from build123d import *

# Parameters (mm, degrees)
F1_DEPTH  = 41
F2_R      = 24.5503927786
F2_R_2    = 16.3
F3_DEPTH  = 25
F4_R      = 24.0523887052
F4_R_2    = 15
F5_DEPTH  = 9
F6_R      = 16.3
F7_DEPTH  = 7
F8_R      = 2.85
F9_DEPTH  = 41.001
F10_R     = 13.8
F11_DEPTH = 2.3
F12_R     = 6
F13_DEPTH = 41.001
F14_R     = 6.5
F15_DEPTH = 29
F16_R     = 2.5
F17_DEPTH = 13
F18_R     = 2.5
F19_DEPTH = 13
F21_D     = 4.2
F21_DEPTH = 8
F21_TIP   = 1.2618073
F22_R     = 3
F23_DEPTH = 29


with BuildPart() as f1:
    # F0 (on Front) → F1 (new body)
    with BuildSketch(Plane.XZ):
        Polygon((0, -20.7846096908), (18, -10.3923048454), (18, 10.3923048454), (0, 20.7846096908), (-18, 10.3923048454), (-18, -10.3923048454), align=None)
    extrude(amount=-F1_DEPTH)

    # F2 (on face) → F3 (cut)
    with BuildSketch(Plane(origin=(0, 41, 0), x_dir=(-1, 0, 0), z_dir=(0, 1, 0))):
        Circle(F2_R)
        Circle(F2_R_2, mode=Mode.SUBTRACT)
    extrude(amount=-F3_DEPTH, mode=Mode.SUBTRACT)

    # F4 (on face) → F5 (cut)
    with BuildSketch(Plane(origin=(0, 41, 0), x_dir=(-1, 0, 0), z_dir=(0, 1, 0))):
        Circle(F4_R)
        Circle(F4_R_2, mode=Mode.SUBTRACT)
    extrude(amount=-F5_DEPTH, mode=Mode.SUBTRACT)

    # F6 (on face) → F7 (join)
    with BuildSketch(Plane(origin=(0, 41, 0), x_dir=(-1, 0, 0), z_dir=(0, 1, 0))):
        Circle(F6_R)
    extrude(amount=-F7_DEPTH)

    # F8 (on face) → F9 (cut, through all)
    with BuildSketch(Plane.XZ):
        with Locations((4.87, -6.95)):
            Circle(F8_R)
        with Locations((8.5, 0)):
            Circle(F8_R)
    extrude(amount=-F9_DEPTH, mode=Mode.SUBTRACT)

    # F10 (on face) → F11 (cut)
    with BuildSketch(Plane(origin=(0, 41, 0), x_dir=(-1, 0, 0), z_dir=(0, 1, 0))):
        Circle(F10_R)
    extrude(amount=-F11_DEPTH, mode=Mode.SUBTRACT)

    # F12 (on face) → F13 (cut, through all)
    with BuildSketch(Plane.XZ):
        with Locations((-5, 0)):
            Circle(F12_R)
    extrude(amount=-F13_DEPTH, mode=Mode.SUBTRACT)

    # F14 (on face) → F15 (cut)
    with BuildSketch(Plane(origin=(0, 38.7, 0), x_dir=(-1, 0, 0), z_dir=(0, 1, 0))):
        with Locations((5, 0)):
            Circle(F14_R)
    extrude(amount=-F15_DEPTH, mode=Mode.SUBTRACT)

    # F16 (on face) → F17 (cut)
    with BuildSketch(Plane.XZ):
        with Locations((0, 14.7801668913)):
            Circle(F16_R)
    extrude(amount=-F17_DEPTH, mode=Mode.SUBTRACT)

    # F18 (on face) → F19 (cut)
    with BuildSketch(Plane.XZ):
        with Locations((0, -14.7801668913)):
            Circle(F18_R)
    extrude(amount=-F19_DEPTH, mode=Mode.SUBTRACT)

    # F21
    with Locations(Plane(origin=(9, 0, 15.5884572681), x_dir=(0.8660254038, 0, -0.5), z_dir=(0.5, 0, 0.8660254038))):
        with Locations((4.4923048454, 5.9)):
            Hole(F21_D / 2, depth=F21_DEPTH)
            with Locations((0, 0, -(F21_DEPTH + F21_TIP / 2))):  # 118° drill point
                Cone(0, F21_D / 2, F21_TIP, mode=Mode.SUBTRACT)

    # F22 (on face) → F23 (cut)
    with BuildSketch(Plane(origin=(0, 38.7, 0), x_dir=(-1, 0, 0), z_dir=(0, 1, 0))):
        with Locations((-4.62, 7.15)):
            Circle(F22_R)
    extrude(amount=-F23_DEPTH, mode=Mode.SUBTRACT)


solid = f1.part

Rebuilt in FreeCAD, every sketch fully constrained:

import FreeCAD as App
import Part
import Sketcher

V = App.Vector
Q = App.Units.Quantity

doc = App.newDocument("Part")
params = doc.addObject("Spreadsheet::Sheet", "Params")
for row, (alias, value) in enumerate([
    ("pad1_length", "41 mm"),
    ("sketch2_diameter", "32.6 mm"),
    ("pocket1_length", "25 mm"),
    ("sketch3_diameter", "30 mm"),
    ("pocket2_length", "9 mm"),
    ("sketch4_diameter", "32.6 mm"),
    ("pad2_length", "7 mm"),
    ("sketch5_diameter", "5.7 mm"),
    ("sketch6_diameter", "27.6 mm"),
    ("pocket4_length", "2.3 mm"),
    ("sketch7_diameter", "12 mm"),
    ("sketch8_diameter", "13 mm"),
    ("pocket6_length", "29 mm"),
    ("sketch9_diameter", "5 mm"),
    ("pocket7_length", "13 mm"),
    ("sketch10_diameter", "5 mm"),
    ("pocket8_length", "13 mm"),
    ("sketch11_diameter", "4.2 mm"),
    ("hole_diameter", "4.2 mm"),
    ("hole_depth", "8 mm"),
    ("sketch12_diameter", "6 mm"),
    ("pocket9_length", "29 mm"),
], start=1):
    params.set(f"A{row}", alias)
    params.set(f"B{row}", "=" + value)
    params.setAlias(f"B{row}", alias)

body = doc.addObject("PartDesign::Body", "Body")

# Sketch on XZ plane
sketch1 = body.newObject("Sketcher::SketchObject", "Sketch")
sketch1.AttachmentSupport = (doc.getObject("XZ_Plane"), [""])
sketch1.MapMode = "FlatFace"
sketch1.addGeometry([
    Part.LineSegment(V(0, -20.78461, 0), V(18, -10.392305, 0)),  # 0
    Part.LineSegment(V(18, -10.392305, 0), V(18, 10.392305, 0)),  # 1
    Part.LineSegment(V(18, 10.392305, 0), V(0, 20.78461, 0)),  # 2
    Part.LineSegment(V(0, 20.78461, 0), V(-18, 10.392305, 0)),  # 3
    Part.LineSegment(V(-18, 10.392305, 0), V(-18, -10.392305, 0)),  # 4
    Part.LineSegment(V(-18, -10.392305, 0), V(0, -20.78461, 0)),  # 5
], False)
sketch1.addConstraint([
    Sketcher.Constraint("Coincident", 0, 2, 1, 1),
    Sketcher.Constraint("Coincident", 1, 2, 2, 1),
    Sketcher.Constraint("Coincident", 2, 2, 3, 1),
    Sketcher.Constraint("Coincident", 3, 2, 4, 1),
    Sketcher.Constraint("Coincident", 4, 2, 5, 1),
    Sketcher.Constraint("Coincident", 5, 2, 0, 1),
    Sketcher.Constraint("Vertical", 1),
    Sketcher.Constraint("Vertical", 4),
    Sketcher.Constraint("Symmetric", 0, 2, 3, 2, -1, 1),
    Sketcher.Constraint("Symmetric", 2, 2, 5, 2, -1, 1),
    Sketcher.Constraint("PointOnObject", 2, 2, -2),
    Sketcher.Constraint("Parallel", 2, 5),
    Sketcher.Constraint("Horizontal", 1, 2, 3, 2),
    Sketcher.Constraint("Angle", 0, Q("30 deg")),
    Sketcher.Constraint("DistanceX", -1, 1, 0, 2, Q("18 mm")),
    Sketcher.Constraint("DistanceY", 1, 1, 1, 2, Q("20.78461 mm")),
])
pad1 = body.newObject("PartDesign::Pad", "Pad")
pad1.Profile = sketch1
pad1.setExpression("Length", "Params.pad1_length")
pad1.Reversed = True

# Sketch on XZ plane
sketch2 = body.newObject("Sketcher::SketchObject", "Sketch001")
sketch2.AttachmentSupport = (doc.getObject("XZ_Plane"), [""])
sketch2.MapMode = "FlatFace"
sketch2.AttachmentOffset = App.Placement(V(0, 0, -41), App.Rotation())
sketch2.addGeometry([
    Part.Circle(V(0, 0, 0), V(0, 0, 1), 24.550393),
    Part.Circle(V(0, 0, 0), V(0, 0, 1), 16.3),
], False)
sketch2.addConstraint([
    Sketcher.Constraint("Coincident", 0, 3, -1, 1),
    Sketcher.Constraint("Coincident", 1, 3, -1, 1),
    Sketcher.Constraint("Diameter", 1, Q("32.6 mm")),
    Sketcher.Constraint("Diameter", 0, Q("49.100786 mm")),
])
sketch2.setExpression("Constraints[2]", "Params.sketch2_diameter")
pocket1 = body.newObject("PartDesign::Pocket", "Pocket")
pocket1.Profile = sketch2
pocket1.setExpression("Length", "Params.pocket1_length")
pocket1.Reversed = True

# Sketch on XZ plane
sketch3 = body.newObject("Sketcher::SketchObject", "Sketch002")
sketch3.AttachmentSupport = (doc.getObject("XZ_Plane"), [""])
sketch3.MapMode = "FlatFace"
sketch3.AttachmentOffset = App.Placement(V(0, 0, -41), App.Rotation())
sketch3.addGeometry([
    Part.Circle(V(0, 0, 0), V(0, 0, 1), 24.052389),
    Part.Circle(V(0, 0, 0), V(0, 0, 1), 15),
], False)
sketch3.addConstraint([
    Sketcher.Constraint("Coincident", 0, 3, -1, 1),
    Sketcher.Constraint("Coincident", 1, 3, -1, 1),
    Sketcher.Constraint("Diameter", 1, Q("30 mm")),
    Sketcher.Constraint("Diameter", 0, Q("48.104777 mm")),
])
sketch3.setExpression("Constraints[2]", "Params.sketch3_diameter")
pocket2 = body.newObject("PartDesign::Pocket", "Pocket001")
pocket2.Profile = sketch3
pocket2.setExpression("Length", "Params.pocket2_length")
pocket2.Reversed = True

# Sketch on XZ plane
sketch4 = body.newObject("Sketcher::SketchObject", "Sketch003")
sketch4.AttachmentSupport = (doc.getObject("XZ_Plane"), [""])
sketch4.MapMode = "FlatFace"
sketch4.AttachmentOffset = App.Placement(V(0, 0, -41), App.Rotation())
sketch4.addGeometry(Part.Circle(V(0, 0, 0), V(0, 0, 1), 16.3), False)
sketch4.addConstraint([
    Sketcher.Constraint("Coincident", 0, 3, -1, 1),
    Sketcher.Constraint("Diameter", 0, Q("32.6 mm")),
])
sketch4.setExpression("Constraints[1]", "Params.sketch4_diameter")
pad2 = body.newObject("PartDesign::Pad", "Pad001")
pad2.Profile = sketch4
pad2.setExpression("Length", "Params.pad2_length")

# Sketch on XZ plane
sketch5 = body.newObject("Sketcher::SketchObject", "Sketch004")
sketch5.AttachmentSupport = (doc.getObject("XZ_Plane"), [""])
sketch5.MapMode = "FlatFace"
sketch5.addGeometry([
    Part.Circle(V(4.87, -6.95, 0), V(0, 0, 1), 2.85),
    Part.Circle(V(8.5, 0, 0), V(0, 0, 1), 2.85),
], False)
sketch5.addConstraint([
    Sketcher.Constraint("Equal", 0, 1),
    Sketcher.Constraint("PointOnObject", 1, 3, -1),
    Sketcher.Constraint("Diameter", 0, Q("5.7 mm")),
    Sketcher.Constraint("DistanceX", -1, 1, 1, 3, Q("8.5 mm")),
    Sketcher.Constraint("DistanceX", -1, 1, 0, 3, Q("4.87 mm")),
    Sketcher.Constraint("DistanceY", 0, 3, -1, 1, Q("6.95 mm")),
])
sketch5.setExpression("Constraints[2]", "Params.sketch5_diameter")
pocket3 = body.newObject("PartDesign::Pocket", "Pocket002")
pocket3.Profile = sketch5
pocket3.Type = "ThroughAll"

# Sketch on XZ plane
sketch6 = body.newObject("Sketcher::SketchObject", "Sketch005")
sketch6.AttachmentSupport = (doc.getObject("XZ_Plane"), [""])
sketch6.MapMode = "FlatFace"
sketch6.AttachmentOffset = App.Placement(V(0, 0, -41), App.Rotation())
sketch6.addGeometry(Part.Circle(V(0, 0, 0), V(0, 0, 1), 13.8), False)
sketch6.addConstraint([
    Sketcher.Constraint("Coincident", 0, 3, -1, 1),
    Sketcher.Constraint("Diameter", 0, Q("27.6 mm")),
])
sketch6.setExpression("Constraints[1]", "Params.sketch6_diameter")
pocket4 = body.newObject("PartDesign::Pocket", "Pocket003")
pocket4.Profile = sketch6
pocket4.setExpression("Length", "Params.pocket4_length")
pocket4.Reversed = True

# Sketch on XZ plane
sketch7 = body.newObject("Sketcher::SketchObject", "Sketch006")
sketch7.AttachmentSupport = (doc.getObject("XZ_Plane"), [""])
sketch7.MapMode = "FlatFace"
sketch7.addGeometry(Part.Circle(V(-5, 0, 0), V(0, 0, 1), 6), False)
sketch7.addConstraint([
    Sketcher.Constraint("PointOnObject", 0, 3, -1),
    Sketcher.Constraint("Diameter", 0, Q("12 mm")),
    Sketcher.Constraint("DistanceX", 0, 3, -1, 1, Q("5 mm")),
])
sketch7.setExpression("Constraints[1]", "Params.sketch7_diameter")
pocket5 = body.newObject("PartDesign::Pocket", "Pocket004")
pocket5.Profile = sketch7
pocket5.Type = "ThroughAll"

# Sketch on XZ plane
sketch8 = body.newObject("Sketcher::SketchObject", "Sketch007")
sketch8.AttachmentSupport = (doc.getObject("XZ_Plane"), [""])
sketch8.MapMode = "FlatFace"
sketch8.AttachmentOffset = App.Placement(V(0, 0, -38.7), App.Rotation())
sketch8.addGeometry(Part.Circle(V(-5, 0, 0), V(0, 0, 1), 6.5), False)
sketch8.addConstraint([
    Sketcher.Constraint("PointOnObject", 0, 3, -1),
    Sketcher.Constraint("Diameter", 0, Q("13 mm")),
    Sketcher.Constraint("DistanceX", 0, 3, -1, 1, Q("5 mm")),
])
sketch8.setExpression("Constraints[1]", "Params.sketch8_diameter")
pocket6 = body.newObject("PartDesign::Pocket", "Pocket005")
pocket6.Profile = sketch8
pocket6.setExpression("Length", "Params.pocket6_length")
pocket6.Reversed = True

# Sketch on XZ plane
sketch9 = body.newObject("Sketcher::SketchObject", "Sketch008")
sketch9.AttachmentSupport = (doc.getObject("XZ_Plane"), [""])
sketch9.MapMode = "FlatFace"
sketch9.addGeometry(Part.Circle(V(0, 14.780167, 0), V(0, 0, 1), 2.5), False)
sketch9.addConstraint([
    Sketcher.Constraint("PointOnObject", 0, 3, -2),
    Sketcher.Constraint("Diameter", 0, Q("5 mm")),
    Sketcher.Constraint("DistanceY", -1, 1, 0, 3, Q("14.780167 mm")),
])
sketch9.setExpression("Constraints[1]", "Params.sketch9_diameter")
pocket7 = body.newObject("PartDesign::Pocket", "Pocket006")
pocket7.Profile = sketch9
pocket7.setExpression("Length", "Params.pocket7_length")

# Sketch on XZ plane
sketch10 = body.newObject("Sketcher::SketchObject", "Sketch009")
sketch10.AttachmentSupport = (doc.getObject("XZ_Plane"), [""])
sketch10.MapMode = "FlatFace"
sketch10.addGeometry(Part.Circle(V(0, -14.780167, 0), V(0, 0, 1), 2.5), False)
sketch10.addConstraint([
    Sketcher.Constraint("PointOnObject", 0, 3, -2),
    Sketcher.Constraint("Diameter", 0, Q("5 mm")),
    Sketcher.Constraint("DistanceY", 0, 3, -1, 1, Q("14.780167 mm")),
])
sketch10.setExpression("Constraints[1]", "Params.sketch10_diameter")
pocket8 = body.newObject("PartDesign::Pocket", "Pocket007")
pocket8.Profile = sketch10
pocket8.setExpression("Length", "Params.pocket8_length")

# Sketch on an angled plane
sketch11 = body.newObject("Sketcher::SketchObject", "Sketch010")
sketch11.Placement = App.Placement(V(9, 0, 15.588457), App.Rotation(V(0.866025404, 0, -0.5), V(0, 1, 0), V(0.5, 0, 0.866025404), "ZXY"))
sketch11.addGeometry(Part.Circle(V(4.492305, 5.9, 0), V(0, 0, 1), 2.1), False)
sketch11.addConstraint([
    Sketcher.Constraint("Diameter", 0, Q("4.2 mm")),
    Sketcher.Constraint("DistanceY", -1, 1, 0, 3, Q("5.9 mm")),
    Sketcher.Constraint("DistanceX", -1, 1, 0, 3, Q("4.492305 mm")),
])
sketch11.setExpression("Constraints[0]", "Params.sketch11_diameter")
doc.recompute()
hole = body.newObject("PartDesign::Hole", "Hole")
hole.Profile = sketch11
hole.ThreadType = "None"
hole.setExpression("Diameter", "Params.hole_diameter")
hole.DepthType = "Dimension"
hole.setExpression("Depth", "Params.hole_depth")
hole.DrillPoint = "Angled"
hole.DrillPointAngle = 118

# Sketch on XZ plane
sketch12 = body.newObject("Sketcher::SketchObject", "Sketch011")
sketch12.AttachmentSupport = (doc.getObject("XZ_Plane"), [""])
sketch12.MapMode = "FlatFace"
sketch12.AttachmentOffset = App.Placement(V(0, 0, -38.7), App.Rotation())
sketch12.addGeometry(Part.Circle(V(4.62, 7.15, 0), V(0, 0, 1), 3), False)
sketch12.addConstraint([
    Sketcher.Constraint("Diameter", 0, Q("6 mm")),
    Sketcher.Constraint("DistanceX", -1, 1, 0, 3, Q("4.62 mm")),
    Sketcher.Constraint("DistanceY", -1, 1, 0, 3, Q("7.15 mm")),
])
sketch12.setExpression("Constraints[0]", "Params.sketch12_diameter")
pocket9 = body.newObject("PartDesign::Pocket", "Pocket008")
pocket9.Profile = sketch12
pocket9.setExpression("Length", "Params.pocket9_length")
pocket9.Reversed = True

doc.recompute()
